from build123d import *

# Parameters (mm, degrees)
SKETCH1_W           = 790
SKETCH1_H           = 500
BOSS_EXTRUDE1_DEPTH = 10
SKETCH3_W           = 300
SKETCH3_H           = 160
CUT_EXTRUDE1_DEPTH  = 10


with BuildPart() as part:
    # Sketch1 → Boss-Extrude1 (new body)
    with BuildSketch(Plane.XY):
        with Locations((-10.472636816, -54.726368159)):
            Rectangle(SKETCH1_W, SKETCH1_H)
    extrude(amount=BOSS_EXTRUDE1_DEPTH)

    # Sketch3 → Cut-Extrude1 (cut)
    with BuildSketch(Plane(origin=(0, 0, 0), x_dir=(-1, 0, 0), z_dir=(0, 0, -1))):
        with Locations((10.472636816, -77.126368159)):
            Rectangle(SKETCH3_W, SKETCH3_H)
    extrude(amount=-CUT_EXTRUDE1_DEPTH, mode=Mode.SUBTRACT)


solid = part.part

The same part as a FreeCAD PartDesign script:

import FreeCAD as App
import Part
import Sketcher
Q = App.Units.Quantity


def add_polygon(sketch, points):
    """Adds a closed chain of lines whose ends are joined by coincident constraints."""
    first, n = sketch.GeometryCount, len(points)
    for a, b in zip(points, points[1:] + points[:1]):
        sketch.addGeometry(Part.LineSegment(App.Vector(*a, 0), App.Vector(*b, 0)), False)
    for i in range(n):
        sketch.addConstraint(Sketcher.Constraint("Coincident", first + i, 2, first + (i + 1) % n, 1))

doc = App.newDocument("Part")
body = doc.addObject("PartDesign::Body", "Body")

sketch1 = doc.addObject("Sketcher::SketchObject", "Sketch")
body.addObject(sketch1)
sketch1.AttachmentSupport = (doc.XY_Plane, [""])
sketch1.MapMode = "FlatFace"
add_polygon(sketch1, [(-405, 195), (-405, -305), (385, -305), (385, 195)])
sketch1.addConstraint(Sketcher.Constraint("Vertical", 0))
sketch1.addConstraint(Sketcher.Constraint("Horizontal", 1))
sketch1.addConstraint(Sketcher.Constraint("Vertical", 2))
sketch1.addConstraint(Sketcher.Constraint("Horizontal", 3))
sketch1.addConstraint(Sketcher.Constraint("DistanceX", 1, 1, 1, 2, Q("790 mm")))
sketch1.addConstraint(Sketcher.Constraint("DistanceY", 0, 2, 0, 1, Q("500 mm")))
sketch1.addConstraint(Sketcher.Constraint("DistanceY", 0, 2, -1, 1, Q("304.726368 mm")))
sketch1.addConstraint(Sketcher.Constraint("DistanceX", 0, 2, -1, 1, Q("405.472637 mm")))
pad1 = doc.addObject("PartDesign::Pad", "Pad")
body.addObject(pad1)
pad1.Profile = sketch1
pad1.Length = 10

sketch2 = doc.addObject("Sketcher::SketchObject", "Sketch001")
body.addObject(sketch2)
sketch2.AttachmentSupport = (doc.XY_Plane, [""])
sketch2.MapMode = "FlatFace"
add_polygon(sketch2, [(140, 3), (140, -157), (-160, -157), (-160, 3)])
sketch2.addConstraint(Sketcher.Constraint("Vertical", 0))
sketch2.addConstraint(Sketcher.Constraint("Horizontal", 1))
sketch2.addConstraint(Sketcher.Constraint("Vertical", 2))
sketch2.addConstraint(Sketcher.Constraint("Horizontal", 3))
sketch2.addConstraint(Sketcher.Constraint("DistanceX", 1, 2, 1, 1, Q("300 mm")))
sketch2.addConstraint(Sketcher.Constraint("DistanceY", 0, 2, 0, 1, Q("160 mm")))
sketch2.addConstraint(Sketcher.Constraint("DistanceY", 0, 2, -1, 1, Q("157.126368 mm")))
sketch2.addConstraint(Sketcher.Constraint("DistanceX", -1, 1, 0, 2, Q("139.527363 mm")))
pocket1 = doc.addObject("PartDesign::Pocket", "Pocket")
body.addObject(pocket1)
pocket1.Profile = sketch2
pocket1.Length = 10
pocket1.Reversed = True

doc.recompute()
